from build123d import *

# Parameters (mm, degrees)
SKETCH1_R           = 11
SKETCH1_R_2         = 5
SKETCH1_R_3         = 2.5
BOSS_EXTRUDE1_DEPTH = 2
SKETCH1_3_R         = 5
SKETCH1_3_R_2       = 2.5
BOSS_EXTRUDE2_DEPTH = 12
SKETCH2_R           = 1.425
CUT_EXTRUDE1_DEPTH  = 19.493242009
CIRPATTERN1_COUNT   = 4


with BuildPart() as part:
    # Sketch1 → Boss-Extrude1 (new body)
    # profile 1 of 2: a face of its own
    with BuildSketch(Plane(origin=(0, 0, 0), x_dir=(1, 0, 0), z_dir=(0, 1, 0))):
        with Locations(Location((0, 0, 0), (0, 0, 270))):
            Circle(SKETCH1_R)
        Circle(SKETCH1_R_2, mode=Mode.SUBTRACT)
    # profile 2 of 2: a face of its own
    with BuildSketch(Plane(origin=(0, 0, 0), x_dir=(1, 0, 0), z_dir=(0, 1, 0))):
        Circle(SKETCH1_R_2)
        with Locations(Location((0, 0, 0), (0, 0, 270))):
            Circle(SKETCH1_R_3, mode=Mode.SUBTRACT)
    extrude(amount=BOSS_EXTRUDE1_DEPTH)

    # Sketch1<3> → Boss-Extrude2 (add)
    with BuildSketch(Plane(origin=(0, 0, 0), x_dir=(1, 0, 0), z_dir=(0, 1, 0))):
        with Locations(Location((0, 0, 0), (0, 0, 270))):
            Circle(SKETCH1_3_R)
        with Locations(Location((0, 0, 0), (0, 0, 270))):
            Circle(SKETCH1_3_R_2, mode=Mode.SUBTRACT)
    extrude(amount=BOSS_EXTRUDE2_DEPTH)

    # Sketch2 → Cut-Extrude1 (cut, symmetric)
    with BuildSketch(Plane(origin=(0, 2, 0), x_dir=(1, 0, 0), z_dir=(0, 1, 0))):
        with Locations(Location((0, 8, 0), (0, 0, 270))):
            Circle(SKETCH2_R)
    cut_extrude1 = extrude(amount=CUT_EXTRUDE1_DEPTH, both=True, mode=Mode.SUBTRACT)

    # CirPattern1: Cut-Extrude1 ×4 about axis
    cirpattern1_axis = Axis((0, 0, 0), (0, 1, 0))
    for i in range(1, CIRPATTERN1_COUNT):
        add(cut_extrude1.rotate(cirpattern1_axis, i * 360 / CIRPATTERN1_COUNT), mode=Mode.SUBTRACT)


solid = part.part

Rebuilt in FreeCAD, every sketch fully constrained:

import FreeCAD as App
import Part
import Sketcher

V = App.Vector

doc = App.newDocument("Part")
body = doc.addObject("PartDesign::Body", "Body")

# Sketch on XZ plane
sketch1 = body.newObject("Sketcher::SketchObject", "Sketch")
sketch1.AttachmentSupport = (doc.getObject("XZ_Plane"), [""])
sketch1.MapMode = "FlatFace"
sketch1.addGeometry([
    Part.Circle(V(0, 0, 0), V(0, 0, 1), 11),
    Part.Circle(V(0, 0, 0), V(0, 0, 1), 2.5),
], False)
sketch1.addConstraint([
    Sketcher.Constraint("Coincident", 0, 3, -1, 1),
    Sketcher.Constraint("Coincident", 1, 3, -1, 1),
    Sketcher.Constraint("Diameter", 0, 22.0),
    Sketcher.Constraint("Diameter", 1, 5.0),
])
pad1 = body.newObject("PartDesign::Pad", "Pad")
pad1.Profile = sketch1
pad1.Length = 2
pad1.Reversed = True

# Sketch on XZ plane
sketch2 = body.newObject("Sketcher::SketchObject", "Sketch001")
sketch2.AttachmentSupport = (doc.getObject("XZ_Plane"), [""])
sketch2.MapMode = "FlatFace"
sketch2.addGeometry([
    Part.Circle(V(0, 0, 0), V(0, 0, 1), 5),
    Part.Circle(V(0, 0, 0), V(0, 0, 1), 2.5),
], False)
sketch2.addConstraint([
    Sketcher.Constraint("Coincident", 0, 3, -1, 1),
    Sketcher.Constraint("Coincident", 1, 3, -1, 1),
    Sketcher.Constraint("Diameter", 0, 10.0),
    Sketcher.Constraint("Diameter", 1, 5.0),
])
pad2 = body.newObject("PartDesign::Pad", "Pad001")
pad2.Profile = sketch2
pad2.Length = 12
pad2.Reversed = True

# Sketch on XZ plane
sketch3 = body.newObject("Sketcher::SketchObject", "Sketch002")
sketch3.AttachmentSupport = (doc.getObject("XZ_Plane"), [""])
sketch3.MapMode = "FlatFace"
sketch3.AttachmentOffset = App.Placement(V(0, 0, -2), App.Rotation())
sketch3.addGeometry(Part.Circle(V(0, -8, 0), V(0, 0, 1), 1.4), False)
sketch3.addConstraint([
    Sketcher.Constraint("PointOnObject", 0, 3, -2),
    Sketcher.Constraint("Diameter", 0, 2.85),
    Sketcher.Constraint("DistanceY", 0, 3, -1, 1, 8.0),
])
pocket1 = body.newObject("PartDesign::Pocket", "Pocket")
pocket1.Profile = sketch3
pocket1.Length = 38.986484
pocket1.Midplane = True
doc.recompute()

polarpattern = body.newObject("PartDesign::PolarPattern", "PolarPattern")
polarpattern.Originals = [pocket1]
polarpattern.Axis = (doc.getObject("Y_Axis"), [""])
polarpattern.Angle = 360
polarpattern.Occurrences = 4
body.Tip = polarpattern

doc.recompute()
